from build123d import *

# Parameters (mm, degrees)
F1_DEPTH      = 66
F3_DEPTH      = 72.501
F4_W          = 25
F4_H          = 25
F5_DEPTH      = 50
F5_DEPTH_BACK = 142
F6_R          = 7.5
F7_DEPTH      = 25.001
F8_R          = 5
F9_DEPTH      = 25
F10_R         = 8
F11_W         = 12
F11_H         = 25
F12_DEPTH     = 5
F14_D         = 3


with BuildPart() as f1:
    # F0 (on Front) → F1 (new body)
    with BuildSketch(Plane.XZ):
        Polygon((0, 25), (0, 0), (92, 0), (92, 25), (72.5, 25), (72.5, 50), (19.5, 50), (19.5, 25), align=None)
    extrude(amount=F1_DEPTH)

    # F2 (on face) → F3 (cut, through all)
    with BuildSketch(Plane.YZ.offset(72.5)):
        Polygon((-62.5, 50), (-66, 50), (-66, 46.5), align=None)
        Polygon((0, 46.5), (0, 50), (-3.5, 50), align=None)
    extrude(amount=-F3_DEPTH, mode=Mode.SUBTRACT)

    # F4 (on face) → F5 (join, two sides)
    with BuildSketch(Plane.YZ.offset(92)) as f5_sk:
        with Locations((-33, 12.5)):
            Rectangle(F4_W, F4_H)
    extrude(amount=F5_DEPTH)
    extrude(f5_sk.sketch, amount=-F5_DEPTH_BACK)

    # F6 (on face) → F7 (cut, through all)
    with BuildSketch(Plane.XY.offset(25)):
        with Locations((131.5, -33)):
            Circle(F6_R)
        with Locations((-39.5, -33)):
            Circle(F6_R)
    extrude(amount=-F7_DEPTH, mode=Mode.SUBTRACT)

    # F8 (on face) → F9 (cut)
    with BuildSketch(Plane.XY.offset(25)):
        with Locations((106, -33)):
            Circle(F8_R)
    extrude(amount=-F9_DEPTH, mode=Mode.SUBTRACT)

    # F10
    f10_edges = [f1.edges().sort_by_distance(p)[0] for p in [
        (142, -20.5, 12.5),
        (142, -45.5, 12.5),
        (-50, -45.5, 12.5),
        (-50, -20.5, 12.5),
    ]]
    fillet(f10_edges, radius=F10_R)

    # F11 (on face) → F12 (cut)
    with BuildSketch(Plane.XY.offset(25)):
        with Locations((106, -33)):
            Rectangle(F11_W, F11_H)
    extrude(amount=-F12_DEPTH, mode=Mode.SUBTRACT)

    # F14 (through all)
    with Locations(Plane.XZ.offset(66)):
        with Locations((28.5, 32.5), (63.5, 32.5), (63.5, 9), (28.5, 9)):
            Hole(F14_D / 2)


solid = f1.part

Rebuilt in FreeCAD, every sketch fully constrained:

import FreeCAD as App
import Part
import Sketcher

V = App.Vector
Q = App.Units.Quantity


def edges_at(feature, points):
    """Names of the edges that pass closest to the given points."""
    edges = feature.Shape.Edges
    near = lambda p: min(range(len(edges)), key=lambda i: edges[i].distToShape(Part.Vertex(*p))[0])
    return sorted({f"Edge{near(p) + 1}" for p in points})

doc = App.newDocument("Part")
body = doc.addObject("PartDesign::Body", "Body")

# Sketch on XZ plane
sketch1 = doc.addObject("Sketcher::SketchObject", "Sketch")
body.addObject(sketch1)
sketch1.AttachmentSupport = (doc.XZ_Plane, [""])
sketch1.MapMode = "FlatFace"
sketch1.addGeometry([
    Part.LineSegment(V(0, 25, 0), V(0, 0, 0)),  # 0
    Part.LineSegment(V(0, 0, 0), V(92, 0, 0)),  # 1
    Part.LineSegment(V(92, 0, 0), V(92, 25, 0)),  # 2
    Part.LineSegment(V(92, 25, 0), V(72, 25, 0)),  # 3
    Part.LineSegment(V(72, 25, 0), V(72, 50, 0)),  # 4
    Part.LineSegment(V(72, 50, 0), V(20, 50, 0)),  # 5
    Part.LineSegment(V(20, 50, 0), V(20, 25, 0)),  # 6
    Part.LineSegment(V(20, 25, 0), V(0, 25, 0)),  # 7
], False)
sketch1.addConstraint([
    Sketcher.Constraint("Coincident", 0, 2, 1, 1),
    Sketcher.Constraint("Coincident", 1, 2, 2, 1),
    Sketcher.Constraint("Coincident", 2, 2, 3, 1),
    Sketcher.Constraint("Coincident", 3, 2, 4, 1),
    Sketcher.Constraint("Coincident", 4, 2, 5, 1),
    Sketcher.Constraint("Coincident", 5, 2, 6, 1),
    Sketcher.Constraint("Coincident", 6, 2, 7, 1),
    Sketcher.Constraint("Coincident", 7, 2, 0, 1),
    Sketcher.Constraint("Vertical", 0),
    Sketcher.Constraint("Horizontal", 1),
    Sketcher.Constraint("Vertical", 2),
    Sketcher.Constraint("Horizontal", 3),
    Sketcher.Constraint("Vertical", 4),
    Sketcher.Constraint("Horizontal", 5),
    Sketcher.Constraint("Vertical", 6),
    Sketcher.Constraint("Horizontal", 7),
    Sketcher.Constraint("Coincident", 0, 2, -1, 1),
    Sketcher.Constraint("Horizontal", 3, 2, 6, 2),
    Sketcher.Constraint("Equal", 3, 7),
    Sketcher.Constraint("Equal", 2, 4),
    Sketcher.Constraint("DistanceX", 1, 1, 1, 2, Q("92 mm")),
    Sketcher.Constraint("DistanceX", 5, 2, 5, 1, Q("53 mm")),
    Sketcher.Constraint("DistanceY", 0, 2, 0, 1, Q("25 mm")),
])
pad1 = doc.addObject("PartDesign::Pad", "Pad")
body.addObject(pad1)
pad1.Profile = sketch1
pad1.Length = 66

# Sketch on YZ plane
sketch2 = doc.addObject("Sketcher::SketchObject", "Sketch001")
body.addObject(sketch2)
sketch2.AttachmentSupport = (doc.YZ_Plane, [""])
sketch2.MapMode = "FlatFace"
sketch2.AttachmentOffset = App.Placement(V(0, 0, 72.5), App.Rotation())
sketch2.addGeometry([
    Part.LineSegment(V(-62.5, 50, 0), V(-66, 50, 0)),  # 0
    Part.LineSegment(V(-66, 50, 0), V(-66, 46.5, 0)),  # 1
    Part.LineSegment(V(-66, 46.5, 0), V(-62.5, 50, 0)),  # 2
    Part.LineSegment(V(0, 46.5, 0), V(0, 50, 0)),  # 3
    Part.LineSegment(V(0, 50, 0), V(-3.5, 50, 0)),  # 4
    Part.LineSegment(V(-3.5, 50, 0), V(0, 46.5, 0)),  # 5
], False)
sketch2.addConstraint([
    Sketcher.Constraint("Coincident", 0, 2, 1, 1),
    Sketcher.Constraint("Coincident", 1, 2, 2, 1),
    Sketcher.Constraint("Coincident", 2, 2, 0, 1),
    Sketcher.Constraint("Coincident", 3, 2, 4, 1),
    Sketcher.Constraint("Coincident", 4, 2, 5, 1),
    Sketcher.Constraint("Coincident", 5, 2, 3, 1),
    Sketcher.Constraint("Horizontal", 0),
    Sketcher.Constraint("Vertical", 1),
    Sketcher.Constraint("Vertical", 3),
    Sketcher.Constraint("Horizontal", 4),
    Sketcher.Constraint("PointOnObject", 3, 2, -2),
    Sketcher.Constraint("Perpendicular", 2, 5),
    Sketcher.Constraint("Horizontal", 2, 2, 3, 2),
    Sketcher.Constraint("Horizontal", 1, 2, 5, 2),
    Sketcher.Constraint("Equal", 0, 4),
    Sketcher.Constraint("DistanceX", 0, 2, 0, 1, Q("3.5 mm")),
    Sketcher.Constraint("DistanceX", 0, 2, -1, 1, Q("66 mm")),
    Sketcher.Constraint("DistanceY", -1, 1, 0, 2, Q("50 mm")),
])
pocket1 = doc.addObject("PartDesign::Pocket", "Pocket")
body.addObject(pocket1)
pocket1.Profile = sketch2
pocket1.Type = "ThroughAll"

# Sketch on YZ plane
sketch3 = doc.addObject("Sketcher::SketchObject", "Sketch002")
body.addObject(sketch3)
sketch3.AttachmentSupport = (doc.YZ_Plane, [""])
sketch3.MapMode = "FlatFace"
sketch3.AttachmentOffset = App.Placement(V(0, 0, 92), App.Rotation())
sketch3.addGeometry([
    Part.LineSegment(V(-46, 25, 0), V(-46, 0, 0)),
    Part.LineSegment(V(-46, 0, 0), V(-20, 0, 0)),
    Part.LineSegment(V(-20, 0, 0), V(-20, 25, 0)),
    Part.LineSegment(V(-20, 25, 0), V(-46, 25, 0)),
], False)
sketch3.addConstraint([
    Sketcher.Constraint("Coincident", 0, 2, 1, 1),
    Sketcher.Constraint("Coincident", 1, 2, 2, 1),
    Sketcher.Constraint("Coincident", 2, 2, 3, 1),
    Sketcher.Constraint("Coincident", 3, 2, 0, 1),
    Sketcher.Constraint("Vertical", 0),
    Sketcher.Constraint("Horizontal", 1),
    Sketcher.Constraint("Vertical", 2),
    Sketcher.Constraint("Horizontal", 3),
    Sketcher.Constraint("PointOnObject", 0, 2, -1),
    Sketcher.Constraint("Equal", 3, 0),
    Sketcher.Constraint("DistanceX", 1, 1, 1, 2, Q("25 mm")),
    Sketcher.Constraint("DistanceX", 0, 2, -1, 1, Q("45.5 mm")),
])
pad2 = doc.addObject("PartDesign::Pad", "Pad001")
body.addObject(pad2)
pad2.Profile = sketch3
pad2.Type = "TwoLengths"
pad2.Length = 50
pad2.Length2 = 142

# Sketch on XY plane
sketch4 = doc.addObject("Sketcher::SketchObject", "Sketch003")
body.addObject(sketch4)
sketch4.AttachmentSupport = (doc.XY_Plane, [""])
sketch4.MapMode = "FlatFace"
sketch4.AttachmentOffset = App.Placement(V(0, 0, 25), App.Rotation())
sketch4.addGeometry([
    Part.Circle(V(132, -33, 0), V(0, 0, 1), 8),
    Part.Circle(V(-40, -33, 0), V(0, 0, 1), 8),
], False)
sketch4.addConstraint([
    Sketcher.Constraint("Equal", 0, 1),
    Sketcher.Constraint("Horizontal", 0, 3, 1, 3),
    Sketcher.Constraint("Diameter", 0, Q("15 mm")),
    Sketcher.Constraint("DistanceY", 0, 3, -1, 1, Q("33 mm")),
    Sketcher.Constraint("DistanceX", 1, 3, 0, 3, Q("171 mm")),
    Sketcher.Constraint("DistanceX", -1, 1, 0, 3, Q("131.5 mm")),
])
pocket2 = doc.addObject("PartDesign::Pocket", "Pocket001")
body.addObject(pocket2)
pocket2.Profile = sketch4
pocket2.Type = "ThroughAll"

# Sketch on XY plane
sketch5 = doc.addObject("Sketcher::SketchObject", "Sketch004")
body.addObject(sketch5)
sketch5.AttachmentSupport = (doc.XY_Plane, [""])
sketch5.MapMode = "FlatFace"
sketch5.AttachmentOffset = App.Placement(V(0, 0, 25), App.Rotation())
sketch5.addGeometry(Part.Circle(V(106, -33, 0), V(0, 0, 1), 5), False)
sketch5.addConstraint([
    Sketcher.Constraint("Diameter", 0, Q("10 mm")),
    Sketcher.Constraint("DistanceX", -1, 1, 0, 3, Q("106 mm")),
    Sketcher.Constraint("DistanceY", 0, 3, -1, 1, Q("33 mm")),
])
pocket3 = doc.addObject("PartDesign::Pocket", "Pocket002")
body.addObject(pocket3)
pocket3.Profile = sketch5
pocket3.Length = 25
doc.recompute()

fillet = doc.addObject("PartDesign::Fillet", "Fillet")
body.addObject(fillet)
fillet.Base = (pocket3, edges_at(pocket3, [
    (142, -20.5, 12.5),
    (142, -45.5, 12.5),
    (-50, -45.5, 12.5),
    (-50, -20.5, 12.5),
]))
fillet.Radius = 8

# Sketch on XY plane
sketch6 = doc.addObject("Sketcher::SketchObject", "Sketch005")
body.addObject(sketch6)
sketch6.AttachmentSupport = (doc.XY_Plane, [""])
sketch6.MapMode = "FlatFace"
sketch6.AttachmentOffset = App.Placement(V(0, 0, 25), App.Rotation())
sketch6.addGeometry([
    Part.LineSegment(V(100, -20, 0), V(100, -46, 0)),
    Part.LineSegment(V(100, -46, 0), V(112, -46, 0)),
    Part.LineSegment(V(112, -46, 0), V(112, -20, 0)),
    Part.LineSegment(V(112, -20, 0), V(100, -20, 0)),
], False)
sketch6.addConstraint([
    Sketcher.Constraint("Coincident", 0, 2, 1, 1),
    Sketcher.Constraint("Coincident", 1, 2, 2, 1),
    Sketcher.Constraint("Coincident", 2, 2, 3, 1),
    Sketcher.Constraint("Coincident", 3, 2, 0, 1),
    Sketcher.Constraint("Vertical", 0),
    Sketcher.Constraint("Horizontal", 1),
    Sketcher.Constraint("Vertical", 2),
    Sketcher.Constraint("Horizontal", 3),
    Sketcher.Constraint("DistanceX", 1, 1, 1, 2, Q("12 mm")),
    Sketcher.Constraint("DistanceY", 0, 2, 0, 1, Q("25 mm")),
    Sketcher.Constraint("DistanceX", -1, 1, 0, 2, Q("100 mm")),
    Sketcher.Constraint("DistanceY", 0, 2, -1, 1, Q("45.5 mm")),
])
pocket4 = doc.addObject("PartDesign::Pocket", "Pocket003")
body.addObject(pocket4)
pocket4.Profile = sketch6
pocket4.Length = 5

# Sketch on XZ plane
sketch7 = doc.addObject("Sketcher::SketchObject", "Sketch006")
body.addObject(sketch7)
sketch7.AttachmentSupport = (doc.XZ_Plane, [""])
sketch7.MapMode = "FlatFace"
sketch7.AttachmentOffset = App.Placement(V(0, 0, 66), App.Rotation())
sketch7.addGeometry([
    Part.Circle(V(28.5, 32.5, 0), V(0, 0, 1), 1.5),
    Part.Circle(V(63.5, 32.5, 0), V(0, 0, 1), 1.5),
    Part.Circle(V(63.5, 9, 0), V(0, 0, 1), 1.5),
    Part.Circle(V(28.5, 9, 0), V(0, 0, 1), 1.5),
], False)
sketch7.addConstraint([
    Sketcher.Constraint("Equal", 0, 1),
    Sketcher.Constraint("Equal", 1, 2),
    Sketcher.Constraint("Equal", 2, 3),
    Sketcher.Constraint("Horizontal", 0, 3, 1, 3),
    Sketcher.Constraint("Horizontal", 2, 3, 3, 3),
    Sketcher.Constraint("Vertical", 1, 3, 2, 3),
    Sketcher.Constraint("Vertical", 0, 3, 3, 3),
    Sketcher.Constraint("Diameter", 0, Q("3 mm")),
    Sketcher.Constraint("DistanceY", -1, 1, 2, 3, Q("9 mm")),
    Sketcher.Constraint("DistanceX", 0, 3, 1, 3, Q("35 mm")),
    Sketcher.Constraint("DistanceX", -1, 1, 0, 3, Q("28.5 mm")),
    Sketcher.Constraint("DistanceY", -1, 1, 0, 3, Q("32.5 mm")),
])
doc.recompute()
hole = doc.addObject("PartDesign::Hole", "Hole")
body.addObject(hole)
hole.Profile = sketch7
hole.ThreadType = "None"
hole.Diameter = 3
hole.DepthType = "ThroughAll"

doc.recompute()
